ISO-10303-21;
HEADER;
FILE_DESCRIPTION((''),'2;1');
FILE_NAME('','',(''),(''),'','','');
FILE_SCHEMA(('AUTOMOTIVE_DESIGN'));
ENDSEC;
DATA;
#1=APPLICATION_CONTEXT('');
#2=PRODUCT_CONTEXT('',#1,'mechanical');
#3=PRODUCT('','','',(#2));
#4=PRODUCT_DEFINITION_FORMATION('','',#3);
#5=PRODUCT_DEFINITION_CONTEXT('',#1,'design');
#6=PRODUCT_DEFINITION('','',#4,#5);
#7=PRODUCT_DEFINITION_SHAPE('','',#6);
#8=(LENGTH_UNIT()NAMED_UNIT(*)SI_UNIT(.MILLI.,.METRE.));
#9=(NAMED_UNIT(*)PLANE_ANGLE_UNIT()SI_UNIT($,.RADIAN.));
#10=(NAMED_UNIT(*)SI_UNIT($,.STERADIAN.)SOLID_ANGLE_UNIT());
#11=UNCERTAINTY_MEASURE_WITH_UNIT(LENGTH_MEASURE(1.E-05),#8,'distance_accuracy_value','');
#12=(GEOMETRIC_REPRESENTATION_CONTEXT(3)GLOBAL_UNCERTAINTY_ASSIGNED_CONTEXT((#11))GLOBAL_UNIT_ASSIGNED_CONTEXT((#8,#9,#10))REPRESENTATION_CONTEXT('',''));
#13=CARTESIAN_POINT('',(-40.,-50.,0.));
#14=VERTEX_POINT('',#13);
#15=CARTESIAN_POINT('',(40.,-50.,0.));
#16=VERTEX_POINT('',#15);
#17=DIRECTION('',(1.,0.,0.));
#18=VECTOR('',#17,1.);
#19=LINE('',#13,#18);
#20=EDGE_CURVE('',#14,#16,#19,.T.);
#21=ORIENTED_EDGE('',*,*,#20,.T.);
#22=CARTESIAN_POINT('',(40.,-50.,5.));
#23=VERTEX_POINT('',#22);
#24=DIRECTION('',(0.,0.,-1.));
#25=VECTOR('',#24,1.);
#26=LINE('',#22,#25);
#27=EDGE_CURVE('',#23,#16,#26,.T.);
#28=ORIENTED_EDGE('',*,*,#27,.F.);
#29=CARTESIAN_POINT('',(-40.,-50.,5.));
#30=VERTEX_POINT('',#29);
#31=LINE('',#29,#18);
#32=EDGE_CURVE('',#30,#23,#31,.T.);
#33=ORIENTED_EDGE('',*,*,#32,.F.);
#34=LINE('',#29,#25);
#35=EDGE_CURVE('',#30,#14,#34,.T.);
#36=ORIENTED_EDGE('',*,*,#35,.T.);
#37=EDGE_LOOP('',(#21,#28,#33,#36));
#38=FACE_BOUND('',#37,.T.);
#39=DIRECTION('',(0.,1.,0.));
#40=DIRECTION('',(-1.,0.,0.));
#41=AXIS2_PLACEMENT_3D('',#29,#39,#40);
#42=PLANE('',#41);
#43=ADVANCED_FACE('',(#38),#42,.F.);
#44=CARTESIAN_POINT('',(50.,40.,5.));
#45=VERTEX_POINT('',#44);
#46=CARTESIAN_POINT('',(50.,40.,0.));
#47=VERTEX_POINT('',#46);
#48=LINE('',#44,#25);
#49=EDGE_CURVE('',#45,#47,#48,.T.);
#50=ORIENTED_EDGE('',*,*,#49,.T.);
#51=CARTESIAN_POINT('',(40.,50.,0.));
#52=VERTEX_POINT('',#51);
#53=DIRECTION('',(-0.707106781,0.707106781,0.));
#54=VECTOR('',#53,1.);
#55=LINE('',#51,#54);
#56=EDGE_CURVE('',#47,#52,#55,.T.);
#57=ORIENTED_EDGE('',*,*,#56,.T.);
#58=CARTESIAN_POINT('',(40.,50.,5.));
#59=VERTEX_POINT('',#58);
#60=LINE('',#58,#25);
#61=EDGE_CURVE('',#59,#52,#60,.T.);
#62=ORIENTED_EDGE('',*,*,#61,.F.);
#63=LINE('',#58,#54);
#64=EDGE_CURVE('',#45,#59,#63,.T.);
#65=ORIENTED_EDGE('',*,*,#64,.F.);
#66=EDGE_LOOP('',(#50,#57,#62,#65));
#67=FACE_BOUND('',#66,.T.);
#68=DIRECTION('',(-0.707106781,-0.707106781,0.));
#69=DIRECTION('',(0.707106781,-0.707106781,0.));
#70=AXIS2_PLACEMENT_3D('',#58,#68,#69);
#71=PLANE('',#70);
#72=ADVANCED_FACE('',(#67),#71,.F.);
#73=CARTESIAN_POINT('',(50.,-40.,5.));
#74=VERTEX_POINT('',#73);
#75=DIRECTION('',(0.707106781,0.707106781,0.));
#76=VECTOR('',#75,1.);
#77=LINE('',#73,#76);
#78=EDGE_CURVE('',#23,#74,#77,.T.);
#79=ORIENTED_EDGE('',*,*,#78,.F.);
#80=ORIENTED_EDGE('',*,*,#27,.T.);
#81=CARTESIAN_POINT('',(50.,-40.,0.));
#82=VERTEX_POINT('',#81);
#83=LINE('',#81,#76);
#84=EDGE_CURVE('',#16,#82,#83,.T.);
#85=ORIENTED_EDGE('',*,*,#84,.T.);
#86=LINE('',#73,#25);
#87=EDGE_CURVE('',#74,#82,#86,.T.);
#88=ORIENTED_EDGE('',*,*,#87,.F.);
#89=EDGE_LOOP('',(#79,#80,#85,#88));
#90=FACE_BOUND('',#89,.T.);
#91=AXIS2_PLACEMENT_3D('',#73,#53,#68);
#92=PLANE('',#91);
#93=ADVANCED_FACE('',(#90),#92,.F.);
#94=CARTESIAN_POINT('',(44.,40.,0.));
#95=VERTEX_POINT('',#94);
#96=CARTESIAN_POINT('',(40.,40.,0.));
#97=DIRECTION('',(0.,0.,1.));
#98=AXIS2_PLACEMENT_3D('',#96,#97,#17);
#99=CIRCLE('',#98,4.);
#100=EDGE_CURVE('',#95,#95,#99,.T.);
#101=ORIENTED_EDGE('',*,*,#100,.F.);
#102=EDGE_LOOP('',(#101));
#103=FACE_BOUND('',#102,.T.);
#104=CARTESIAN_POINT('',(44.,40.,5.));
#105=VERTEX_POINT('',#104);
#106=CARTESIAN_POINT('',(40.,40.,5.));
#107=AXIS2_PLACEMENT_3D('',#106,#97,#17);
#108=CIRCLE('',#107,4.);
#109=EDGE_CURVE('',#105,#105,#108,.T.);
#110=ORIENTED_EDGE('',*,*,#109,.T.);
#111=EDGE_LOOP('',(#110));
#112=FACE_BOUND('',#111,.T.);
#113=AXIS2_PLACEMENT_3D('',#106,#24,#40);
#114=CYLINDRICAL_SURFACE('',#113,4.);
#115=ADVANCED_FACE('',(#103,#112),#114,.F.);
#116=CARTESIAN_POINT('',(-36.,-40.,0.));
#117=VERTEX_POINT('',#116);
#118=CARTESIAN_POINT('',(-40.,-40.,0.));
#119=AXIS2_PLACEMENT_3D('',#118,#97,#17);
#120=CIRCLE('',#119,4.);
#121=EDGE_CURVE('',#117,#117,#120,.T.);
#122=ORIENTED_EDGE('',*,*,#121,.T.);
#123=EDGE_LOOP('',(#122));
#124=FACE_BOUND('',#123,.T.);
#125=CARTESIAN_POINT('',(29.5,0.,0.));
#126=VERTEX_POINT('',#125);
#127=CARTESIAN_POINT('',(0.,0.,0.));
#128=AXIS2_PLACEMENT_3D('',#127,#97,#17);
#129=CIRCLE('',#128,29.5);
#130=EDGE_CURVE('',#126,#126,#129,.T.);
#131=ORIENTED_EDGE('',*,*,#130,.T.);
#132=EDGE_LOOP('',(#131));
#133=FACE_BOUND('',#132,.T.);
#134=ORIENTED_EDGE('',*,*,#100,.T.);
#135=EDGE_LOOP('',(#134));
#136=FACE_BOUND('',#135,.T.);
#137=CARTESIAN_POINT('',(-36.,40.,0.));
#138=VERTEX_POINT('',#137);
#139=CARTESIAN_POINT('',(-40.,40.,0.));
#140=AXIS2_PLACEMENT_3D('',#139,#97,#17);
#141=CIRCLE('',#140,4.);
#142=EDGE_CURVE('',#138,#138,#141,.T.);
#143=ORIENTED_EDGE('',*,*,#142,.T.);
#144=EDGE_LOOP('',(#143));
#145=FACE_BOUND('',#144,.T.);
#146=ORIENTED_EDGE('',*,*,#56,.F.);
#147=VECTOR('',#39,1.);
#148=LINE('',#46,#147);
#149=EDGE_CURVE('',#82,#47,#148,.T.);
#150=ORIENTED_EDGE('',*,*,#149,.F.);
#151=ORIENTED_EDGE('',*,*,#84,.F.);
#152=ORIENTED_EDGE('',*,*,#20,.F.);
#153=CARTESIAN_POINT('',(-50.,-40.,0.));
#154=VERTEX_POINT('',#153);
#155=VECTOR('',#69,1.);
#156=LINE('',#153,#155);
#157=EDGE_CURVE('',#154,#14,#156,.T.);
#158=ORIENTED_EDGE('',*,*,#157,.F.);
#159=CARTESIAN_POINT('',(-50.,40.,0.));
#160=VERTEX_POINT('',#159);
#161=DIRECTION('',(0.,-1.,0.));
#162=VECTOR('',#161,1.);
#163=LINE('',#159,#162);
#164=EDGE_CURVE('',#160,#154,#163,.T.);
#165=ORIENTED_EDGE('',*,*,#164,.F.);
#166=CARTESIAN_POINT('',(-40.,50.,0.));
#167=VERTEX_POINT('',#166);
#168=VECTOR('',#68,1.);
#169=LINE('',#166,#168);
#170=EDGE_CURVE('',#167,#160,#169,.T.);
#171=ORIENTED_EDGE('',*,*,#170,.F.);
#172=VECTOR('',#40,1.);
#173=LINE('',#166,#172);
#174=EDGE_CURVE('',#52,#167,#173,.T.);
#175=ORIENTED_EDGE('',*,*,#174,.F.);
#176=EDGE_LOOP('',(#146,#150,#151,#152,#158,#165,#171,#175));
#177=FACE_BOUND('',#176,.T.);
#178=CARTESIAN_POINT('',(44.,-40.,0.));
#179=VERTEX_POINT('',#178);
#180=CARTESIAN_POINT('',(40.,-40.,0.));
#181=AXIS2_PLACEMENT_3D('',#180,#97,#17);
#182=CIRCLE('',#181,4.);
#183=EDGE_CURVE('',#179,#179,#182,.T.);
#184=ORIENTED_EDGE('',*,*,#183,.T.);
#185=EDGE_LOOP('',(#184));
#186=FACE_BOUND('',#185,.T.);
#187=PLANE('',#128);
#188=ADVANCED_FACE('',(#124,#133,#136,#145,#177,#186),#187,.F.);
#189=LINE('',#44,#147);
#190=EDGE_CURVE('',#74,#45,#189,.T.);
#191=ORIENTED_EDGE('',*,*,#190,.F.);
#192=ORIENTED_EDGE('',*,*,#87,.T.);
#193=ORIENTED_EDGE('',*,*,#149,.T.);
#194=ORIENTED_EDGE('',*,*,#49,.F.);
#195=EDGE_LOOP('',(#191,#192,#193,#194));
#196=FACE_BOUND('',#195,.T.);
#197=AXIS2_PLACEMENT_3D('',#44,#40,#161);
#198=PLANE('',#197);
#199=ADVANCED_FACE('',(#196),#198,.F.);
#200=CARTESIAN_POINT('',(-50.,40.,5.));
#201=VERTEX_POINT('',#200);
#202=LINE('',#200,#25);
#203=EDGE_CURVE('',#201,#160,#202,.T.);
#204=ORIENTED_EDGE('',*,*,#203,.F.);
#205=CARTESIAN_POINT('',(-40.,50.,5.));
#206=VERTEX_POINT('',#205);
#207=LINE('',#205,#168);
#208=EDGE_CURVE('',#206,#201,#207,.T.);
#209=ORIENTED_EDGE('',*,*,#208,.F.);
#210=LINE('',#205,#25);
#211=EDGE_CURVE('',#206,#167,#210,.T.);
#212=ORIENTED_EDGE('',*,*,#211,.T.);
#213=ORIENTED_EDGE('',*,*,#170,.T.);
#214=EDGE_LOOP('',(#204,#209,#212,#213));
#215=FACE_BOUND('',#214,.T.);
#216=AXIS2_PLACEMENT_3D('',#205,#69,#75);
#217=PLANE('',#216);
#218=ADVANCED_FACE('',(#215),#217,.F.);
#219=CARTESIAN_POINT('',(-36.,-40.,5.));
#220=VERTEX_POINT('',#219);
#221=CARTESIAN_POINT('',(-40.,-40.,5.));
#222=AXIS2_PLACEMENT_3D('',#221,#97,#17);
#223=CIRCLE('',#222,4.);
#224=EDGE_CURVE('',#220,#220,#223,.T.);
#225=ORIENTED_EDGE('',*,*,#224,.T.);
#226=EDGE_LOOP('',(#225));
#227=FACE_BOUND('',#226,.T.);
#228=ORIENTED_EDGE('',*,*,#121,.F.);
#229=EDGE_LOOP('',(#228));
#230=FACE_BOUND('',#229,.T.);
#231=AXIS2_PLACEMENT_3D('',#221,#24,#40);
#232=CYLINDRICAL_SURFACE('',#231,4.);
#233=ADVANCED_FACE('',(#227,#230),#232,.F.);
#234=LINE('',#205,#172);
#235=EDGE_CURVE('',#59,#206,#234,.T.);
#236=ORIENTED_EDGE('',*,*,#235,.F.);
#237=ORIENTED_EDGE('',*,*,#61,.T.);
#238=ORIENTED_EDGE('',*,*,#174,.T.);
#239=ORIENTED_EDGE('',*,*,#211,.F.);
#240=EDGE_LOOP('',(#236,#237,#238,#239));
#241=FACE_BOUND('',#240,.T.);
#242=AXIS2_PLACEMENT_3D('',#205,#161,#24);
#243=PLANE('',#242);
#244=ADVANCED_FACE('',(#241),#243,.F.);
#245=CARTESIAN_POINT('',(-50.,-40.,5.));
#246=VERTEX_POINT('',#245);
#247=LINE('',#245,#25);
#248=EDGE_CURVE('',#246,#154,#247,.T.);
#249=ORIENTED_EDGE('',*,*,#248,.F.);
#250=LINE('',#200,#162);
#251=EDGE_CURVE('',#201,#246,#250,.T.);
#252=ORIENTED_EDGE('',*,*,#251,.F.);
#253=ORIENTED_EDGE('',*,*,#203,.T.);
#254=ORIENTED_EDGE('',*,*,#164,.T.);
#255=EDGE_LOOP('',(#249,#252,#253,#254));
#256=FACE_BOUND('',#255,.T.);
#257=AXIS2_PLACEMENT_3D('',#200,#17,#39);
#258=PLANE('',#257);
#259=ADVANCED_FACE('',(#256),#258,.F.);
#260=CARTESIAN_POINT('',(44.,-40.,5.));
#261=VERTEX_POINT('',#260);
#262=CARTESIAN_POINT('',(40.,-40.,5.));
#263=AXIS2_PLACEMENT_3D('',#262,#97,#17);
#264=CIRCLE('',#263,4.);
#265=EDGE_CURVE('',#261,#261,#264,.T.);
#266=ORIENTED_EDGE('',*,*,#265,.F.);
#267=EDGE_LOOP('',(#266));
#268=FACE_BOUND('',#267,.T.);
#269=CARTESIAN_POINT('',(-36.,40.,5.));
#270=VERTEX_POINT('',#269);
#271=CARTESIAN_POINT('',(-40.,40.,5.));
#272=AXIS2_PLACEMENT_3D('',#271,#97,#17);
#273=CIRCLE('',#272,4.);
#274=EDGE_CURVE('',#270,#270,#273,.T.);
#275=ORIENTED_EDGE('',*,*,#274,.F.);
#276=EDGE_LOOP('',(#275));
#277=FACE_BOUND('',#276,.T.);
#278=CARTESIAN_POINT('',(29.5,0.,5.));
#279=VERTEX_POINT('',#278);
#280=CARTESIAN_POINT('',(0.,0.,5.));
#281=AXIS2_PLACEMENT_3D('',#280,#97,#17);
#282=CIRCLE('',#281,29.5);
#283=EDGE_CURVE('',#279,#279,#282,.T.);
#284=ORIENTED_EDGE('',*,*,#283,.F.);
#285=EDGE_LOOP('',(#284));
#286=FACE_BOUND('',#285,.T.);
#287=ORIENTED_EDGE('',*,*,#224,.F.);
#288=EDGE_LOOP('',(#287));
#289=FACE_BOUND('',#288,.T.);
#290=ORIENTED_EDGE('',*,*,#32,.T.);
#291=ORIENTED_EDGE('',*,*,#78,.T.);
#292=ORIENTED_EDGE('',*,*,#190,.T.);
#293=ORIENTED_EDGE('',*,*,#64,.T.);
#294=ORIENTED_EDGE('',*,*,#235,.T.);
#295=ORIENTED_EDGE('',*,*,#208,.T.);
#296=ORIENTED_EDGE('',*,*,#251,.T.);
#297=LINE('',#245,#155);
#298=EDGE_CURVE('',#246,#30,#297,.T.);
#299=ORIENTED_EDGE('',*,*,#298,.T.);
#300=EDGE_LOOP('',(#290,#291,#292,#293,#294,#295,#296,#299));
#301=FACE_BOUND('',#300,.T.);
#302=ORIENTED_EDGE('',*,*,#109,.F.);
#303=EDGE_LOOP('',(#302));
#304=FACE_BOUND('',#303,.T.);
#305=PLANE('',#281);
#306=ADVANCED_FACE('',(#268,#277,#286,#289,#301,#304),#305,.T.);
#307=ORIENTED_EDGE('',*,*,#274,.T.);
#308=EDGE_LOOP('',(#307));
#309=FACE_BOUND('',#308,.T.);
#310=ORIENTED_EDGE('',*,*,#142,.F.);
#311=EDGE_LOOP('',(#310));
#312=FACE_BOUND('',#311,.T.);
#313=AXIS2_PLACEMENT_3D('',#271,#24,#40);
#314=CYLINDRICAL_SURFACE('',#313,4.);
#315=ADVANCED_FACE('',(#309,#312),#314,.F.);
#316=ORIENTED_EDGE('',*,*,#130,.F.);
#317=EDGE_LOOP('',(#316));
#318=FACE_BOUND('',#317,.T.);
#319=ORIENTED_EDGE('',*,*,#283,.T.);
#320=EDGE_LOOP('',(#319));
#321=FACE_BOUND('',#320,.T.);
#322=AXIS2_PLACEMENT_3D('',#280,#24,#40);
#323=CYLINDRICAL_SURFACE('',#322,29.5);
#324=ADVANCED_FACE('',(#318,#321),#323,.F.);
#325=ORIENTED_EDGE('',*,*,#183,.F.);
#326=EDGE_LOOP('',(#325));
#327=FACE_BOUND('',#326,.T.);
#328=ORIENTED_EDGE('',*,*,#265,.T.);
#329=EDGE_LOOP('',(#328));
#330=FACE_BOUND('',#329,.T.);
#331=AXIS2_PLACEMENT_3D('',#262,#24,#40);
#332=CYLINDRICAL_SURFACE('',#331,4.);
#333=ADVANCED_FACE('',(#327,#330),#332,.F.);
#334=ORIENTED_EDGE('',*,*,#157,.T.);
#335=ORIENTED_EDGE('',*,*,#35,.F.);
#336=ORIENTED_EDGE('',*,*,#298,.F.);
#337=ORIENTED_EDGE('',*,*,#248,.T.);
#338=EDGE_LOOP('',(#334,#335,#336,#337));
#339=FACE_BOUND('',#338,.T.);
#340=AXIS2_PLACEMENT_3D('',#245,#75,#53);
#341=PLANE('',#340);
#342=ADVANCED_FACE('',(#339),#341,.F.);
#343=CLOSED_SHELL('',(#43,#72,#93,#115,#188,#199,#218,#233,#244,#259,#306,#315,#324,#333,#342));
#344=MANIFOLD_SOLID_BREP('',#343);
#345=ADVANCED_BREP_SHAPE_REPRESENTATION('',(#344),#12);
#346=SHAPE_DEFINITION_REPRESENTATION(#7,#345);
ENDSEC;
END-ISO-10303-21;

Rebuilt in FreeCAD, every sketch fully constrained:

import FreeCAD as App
import Part
import Sketcher


def add_polygon(sketch, points):
    """Adds a closed chain of lines whose ends are joined by coincident constraints."""
    first, n = sketch.GeometryCount, len(points)
    for a, b in zip(points, points[1:] + points[:1]):
        sketch.addGeometry(Part.LineSegment(App.Vector(*a, 0), App.Vector(*b, 0)), False)
    for i in range(n):
        sketch.addConstraint(Sketcher.Constraint("Coincident", first + i, 2, first + (i + 1) % n, 1))

doc = App.newDocument("Part")
body = doc.addObject("PartDesign::Body", "Body")

# Sketch on XY plane
sketch1 = doc.addObject("Sketcher::SketchObject", "Sketch")
body.addObject(sketch1)
sketch1.AttachmentSupport = (doc.XY_Plane, [""])
sketch1.MapMode = "FlatFace"
add_polygon(sketch1, [(-40, 50), (-50, 40), (-50, -40), (-40, -50), (40, -50), (50, -40), (50, 40), (40, 50)])  # lines 0-7
sketch1.addGeometry(Part.Circle(App.Vector(-40, -40, 0), App.Vector(0, 0, 1), 4), False)  # 8
sketch1.addGeometry(Part.Circle(App.Vector(40, -40, 0), App.Vector(0, 0, 1), 4), False)  # 9
sketch1.addGeometry(Part.Circle(App.Vector(-40, 40, 0), App.Vector(0, 0, 1), 4), False)  # 10
sketch1.addGeometry(Part.Circle(App.Vector(0, 0, 0), App.Vector(0, 0, 1), 29.5), False)  # 11
sketch1.addGeometry(Part.Circle(App.Vector(40, 40, 0), App.Vector(0, 0, 1), 4), False)  # 12
sketch1.addConstraint([
    Sketcher.Constraint("Vertical", 1),
    Sketcher.Constraint("Horizontal", 3),
    Sketcher.Constraint("Vertical", 5),
    Sketcher.Constraint("Horizontal", 7),
    Sketcher.Constraint("Coincident", 11, 3, -1, 1),
    Sketcher.Constraint("Equal", 8, 9),
    Sketcher.Constraint("Equal", 9, 10),
    Sketcher.Constraint("Equal", 10, 12),
    Sketcher.Constraint("Symmetric", 9, 3, 10, 3, -1, 1),
    Sketcher.Constraint("Symmetric", 8, 3, 12, 3, -1, 1),
    Sketcher.Constraint("Symmetric", 0, 2, 4, 2, -1, 1),
    Sketcher.Constraint("Symmetric", 2, 2, 6, 2, -1, 1),
    Sketcher.Constraint("Symmetric", 8, 3, 9, 3, -2),
    Sketcher.Constraint("Perpendicular", 0, 2),
    Sketcher.Constraint("Perpendicular", 2, 4),
    Sketcher.Constraint("Perpendicular", 4, 6),
    Sketcher.Constraint("Horizontal", 12, 3, 0, 2),
    Sketcher.Constraint("Horizontal", 9, 3, 1, 2),
    Sketcher.Constraint("Vertical", 10, 3, 2, 2),
    Sketcher.Constraint("Vertical", 12, 3, 3, 2),
    Sketcher.Constraint("Equal", 7, 1),
    Sketcher.Constraint("Diameter", 8, 8.0),
    Sketcher.Constraint("Diameter", 11, 59.0),
    Sketcher.Constraint("DistanceX", 3, 1, 3, 2, 80.0),
    Sketcher.Constraint("DistanceX", 0, 2, -1, 1, 50.0),
])
pad1 = doc.addObject("PartDesign::Pad", "Pad")
body.addObject(pad1)
pad1.Profile = sketch1
pad1.Length = 5

doc.recompute()
